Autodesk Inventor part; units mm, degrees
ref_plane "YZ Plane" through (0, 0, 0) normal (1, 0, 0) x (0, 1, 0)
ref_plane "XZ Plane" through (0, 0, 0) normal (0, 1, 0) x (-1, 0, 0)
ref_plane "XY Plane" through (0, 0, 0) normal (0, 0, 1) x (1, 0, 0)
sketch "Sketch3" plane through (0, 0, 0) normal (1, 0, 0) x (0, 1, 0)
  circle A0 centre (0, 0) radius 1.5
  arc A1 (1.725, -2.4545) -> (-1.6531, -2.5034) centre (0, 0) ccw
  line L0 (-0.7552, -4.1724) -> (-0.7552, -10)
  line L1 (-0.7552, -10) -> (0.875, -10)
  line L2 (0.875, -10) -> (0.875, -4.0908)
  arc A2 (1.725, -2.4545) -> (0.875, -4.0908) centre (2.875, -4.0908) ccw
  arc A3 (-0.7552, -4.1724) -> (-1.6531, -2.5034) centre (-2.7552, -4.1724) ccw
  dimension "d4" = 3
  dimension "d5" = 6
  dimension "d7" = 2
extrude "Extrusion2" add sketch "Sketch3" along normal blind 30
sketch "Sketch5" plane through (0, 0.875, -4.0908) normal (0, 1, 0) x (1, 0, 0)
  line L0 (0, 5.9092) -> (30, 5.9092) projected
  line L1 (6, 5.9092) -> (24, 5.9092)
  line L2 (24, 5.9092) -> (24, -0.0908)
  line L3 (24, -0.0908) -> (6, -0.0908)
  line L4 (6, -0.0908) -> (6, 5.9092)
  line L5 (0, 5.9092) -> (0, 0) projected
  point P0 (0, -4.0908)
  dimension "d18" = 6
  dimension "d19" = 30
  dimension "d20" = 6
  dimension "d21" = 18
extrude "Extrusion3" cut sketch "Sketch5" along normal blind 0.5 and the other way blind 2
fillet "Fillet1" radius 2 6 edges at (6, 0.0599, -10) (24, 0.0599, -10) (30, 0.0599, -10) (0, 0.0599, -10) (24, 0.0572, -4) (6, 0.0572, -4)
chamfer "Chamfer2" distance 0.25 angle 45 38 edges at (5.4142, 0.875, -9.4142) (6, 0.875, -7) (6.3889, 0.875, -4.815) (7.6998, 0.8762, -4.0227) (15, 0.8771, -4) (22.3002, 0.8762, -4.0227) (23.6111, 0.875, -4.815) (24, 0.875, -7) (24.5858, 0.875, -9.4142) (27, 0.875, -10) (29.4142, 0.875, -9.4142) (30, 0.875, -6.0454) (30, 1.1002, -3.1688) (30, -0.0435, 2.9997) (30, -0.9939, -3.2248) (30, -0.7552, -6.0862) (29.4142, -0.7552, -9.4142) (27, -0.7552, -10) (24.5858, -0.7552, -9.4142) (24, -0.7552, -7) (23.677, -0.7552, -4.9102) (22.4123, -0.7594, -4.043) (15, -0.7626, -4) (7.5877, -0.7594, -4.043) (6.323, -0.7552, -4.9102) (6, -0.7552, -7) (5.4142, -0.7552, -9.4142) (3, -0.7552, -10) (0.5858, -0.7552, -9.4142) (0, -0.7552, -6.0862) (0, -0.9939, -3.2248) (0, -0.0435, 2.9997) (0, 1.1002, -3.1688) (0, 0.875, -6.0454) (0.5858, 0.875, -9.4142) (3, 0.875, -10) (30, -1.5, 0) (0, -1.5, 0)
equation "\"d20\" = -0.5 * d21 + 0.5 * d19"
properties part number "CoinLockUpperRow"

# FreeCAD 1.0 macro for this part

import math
import FreeCAD as App
import Part
import Sketcher


def edges_at(feature, points):
    """Names of the edges that pass closest to the given points."""
    edges = feature.Shape.Edges
    near = lambda p: min(range(len(edges)), key=lambda i: edges[i].distToShape(Part.Vertex(*p))[0])
    return sorted({f"Edge{near(p) + 1}" for p in points})


def add_polygon(sketch, points):
    """Adds a closed chain of lines whose ends are joined by coincident constraints."""
    first, n = sketch.GeometryCount, len(points)
    for a, b in zip(points, points[1:] + points[:1]):
        sketch.addGeometry(Part.LineSegment(App.Vector(*a, 0), App.Vector(*b, 0)), False)
    for i in range(n):
        sketch.addConstraint(Sketcher.Constraint("Coincident", first + i, 2, first + (i + 1) % n, 1))

doc = App.newDocument("Part")
body = doc.addObject("PartDesign::Body", "Body")

# Sketch on YZ plane
sketch1 = body.newObject("Sketcher::SketchObject", "Sketch")
sketch1.AttachmentSupport = (doc.getObject("YZ_Plane"), [""])
sketch1.MapMode = "FlatFace"
sketch1.addGeometry([
    Part.ArcOfCircle(Part.Circle(App.Vector(2.9, -4.1, 0), App.Vector(0, 0, 1), 2), math.radians(125), math.radians(180)),  # 0
    Part.ArcOfCircle(Part.Circle(App.Vector(0, 0, 0), App.Vector(0, 0, 1), 3), math.radians(-55), math.radians(237)),  # 1
    Part.ArcOfCircle(Part.Circle(App.Vector(-2.8, -4.2, 0), App.Vector(0, 0, 1), 2), math.radians(0), math.radians(57)),  # 2
    Part.LineSegment(App.Vector(-0.8, -4.2, 0), App.Vector(-0.8, -10, 0)),  # 3
    Part.LineSegment(App.Vector(-0.8, -10, 0), App.Vector(0.9, -10, 0)),  # 4
    Part.LineSegment(App.Vector(0.9, -10, 0), App.Vector(0.9, -4.1, 0)),  # 5
    Part.Circle(App.Vector(0, 0, 0), App.Vector(0, 0, 1), 1.5),  # 6
], False)
sketch1.addConstraint([
    Sketcher.Constraint("Tangent", 0, 1, 1, 1),
    Sketcher.Constraint("Tangent", 1, 2, 2, 2),
    Sketcher.Constraint("Tangent", 2, 1, 3, 1),
    Sketcher.Constraint("Coincident", 3, 2, 4, 1),
    Sketcher.Constraint("Coincident", 4, 2, 5, 1),
    Sketcher.Constraint("Tangent", 5, 2, 0, 2),
    Sketcher.Constraint("Vertical", 3),
    Sketcher.Constraint("Horizontal", 4),
    Sketcher.Constraint("Vertical", 5),
    Sketcher.Constraint("Coincident", 1, 3, -1, 1),
    Sketcher.Constraint("Coincident", 6, 3, -1, 1),
    Sketcher.Constraint("Equal", 0, 2),
    Sketcher.Constraint("Diameter", 6, 3.0),
    Sketcher.Constraint("Radius", 0, 2.0),
    Sketcher.Constraint("Radius", 1, 3.0),
    Sketcher.Constraint("DistanceY", 3, 2, -1, 1, 10.0),
    Sketcher.Constraint("DistanceX", 0, 1, 0, 3, 1.15),
    Sketcher.Constraint("DistanceX", 4, 1, 4, 2, 1.6302),
])
pad1 = body.newObject("PartDesign::Pad", "Pad")
pad1.Profile = sketch1
pad1.Length = 30

# Sketch on XZ plane
sketch2 = body.newObject("Sketcher::SketchObject", "Sketch001")
sketch2.AttachmentSupport = (doc.getObject("XZ_Plane"), [""])
sketch2.MapMode = "FlatFace"
sketch2.AttachmentOffset = App.Placement(App.Vector(0, 0, -0.875), App.Rotation())
add_polygon(sketch2, [(24, -10), (6, -10), (6, -4), (24, -4)])  # lines 0-3
sketch2.addConstraint([
    Sketcher.Constraint("Horizontal", 0),
    Sketcher.Constraint("Vertical", 1),
    Sketcher.Constraint("Horizontal", 2),
    Sketcher.Constraint("Vertical", 3),
    Sketcher.Constraint("DistanceX", 0, 2, 0, 1, 18.0),
    Sketcher.Constraint("DistanceY", 1, 1, 1, 2, 6.0),
    Sketcher.Constraint("DistanceX", -1, 1, 0, 2, 6.0),
    Sketcher.Constraint("DistanceY", 0, 2, -1, 1, 10.0),
])
pocket1 = body.newObject("PartDesign::Pocket", "Pocket")
pocket1.Profile = sketch2
pocket1.Type = "ThroughAll"
pocket1.Midplane = True
doc.recompute()

fillet = body.newObject("PartDesign::Fillet", "Fillet")
fillet.Base = (pocket1, edges_at(pocket1, [
    (6, 0.06, -10),
    (24, 0.06, -10),
    (30, 0.06, -10),
    (0, 0.06, -10),
    (24, 0.057, -4),
    (6, 0.057, -4),
]))
fillet.Radius = 2
doc.recompute()

chamfer = body.newObject("PartDesign::Chamfer", "Chamfer")
chamfer.Base = (fillet, edges_at(fillet, [
    (5.414, 0.875, -9.414),
    (6, 0.875, -7),
    (6.389, 0.875, -4.815),
    (7.7, 0.876, -4.023),
    (15, 0.877, -4),
    (22.3, 0.876, -4.023),
    (23.611, 0.875, -4.815),
    (24, 0.875, -7),
    (24.586, 0.875, -9.414),
    (27, 0.875, -10),
    (29.414, 0.875, -9.414),
    (30, 0.875, -6.045),
    (30, 1.1, -3.169),
    (30, -0.043, 3),
    (30, -0.994, -3.225),
    (30, -0.755, -6.086),
    (29.414, -0.755, -9.414),
    (27, -0.755, -10),
    (24.586, -0.755, -9.414),
    (24, -0.755, -7),
    (23.677, -0.755, -4.91),
    (22.412, -0.759, -4.043),
    (15, -0.763, -4),
    (7.588, -0.759, -4.043),
    (6.323, -0.755, -4.91),
    (6, -0.755, -7),
    (5.414, -0.755, -9.414),
    (3, -0.755, -10),
    (0.586, -0.755, -9.414),
    (0, -0.755, -6.086),
    (0, -0.994, -3.225),
    (0, -0.043, 3),
    (0, 1.1, -3.169),
    (0, 0.875, -6.045),
    (0.586, 0.875, -9.414),
    (3, 0.875, -10),
    (30, -1.5, 0),
    (0, -1.5, 0),
]))
chamfer.Size = 0.25

doc.recompute()
